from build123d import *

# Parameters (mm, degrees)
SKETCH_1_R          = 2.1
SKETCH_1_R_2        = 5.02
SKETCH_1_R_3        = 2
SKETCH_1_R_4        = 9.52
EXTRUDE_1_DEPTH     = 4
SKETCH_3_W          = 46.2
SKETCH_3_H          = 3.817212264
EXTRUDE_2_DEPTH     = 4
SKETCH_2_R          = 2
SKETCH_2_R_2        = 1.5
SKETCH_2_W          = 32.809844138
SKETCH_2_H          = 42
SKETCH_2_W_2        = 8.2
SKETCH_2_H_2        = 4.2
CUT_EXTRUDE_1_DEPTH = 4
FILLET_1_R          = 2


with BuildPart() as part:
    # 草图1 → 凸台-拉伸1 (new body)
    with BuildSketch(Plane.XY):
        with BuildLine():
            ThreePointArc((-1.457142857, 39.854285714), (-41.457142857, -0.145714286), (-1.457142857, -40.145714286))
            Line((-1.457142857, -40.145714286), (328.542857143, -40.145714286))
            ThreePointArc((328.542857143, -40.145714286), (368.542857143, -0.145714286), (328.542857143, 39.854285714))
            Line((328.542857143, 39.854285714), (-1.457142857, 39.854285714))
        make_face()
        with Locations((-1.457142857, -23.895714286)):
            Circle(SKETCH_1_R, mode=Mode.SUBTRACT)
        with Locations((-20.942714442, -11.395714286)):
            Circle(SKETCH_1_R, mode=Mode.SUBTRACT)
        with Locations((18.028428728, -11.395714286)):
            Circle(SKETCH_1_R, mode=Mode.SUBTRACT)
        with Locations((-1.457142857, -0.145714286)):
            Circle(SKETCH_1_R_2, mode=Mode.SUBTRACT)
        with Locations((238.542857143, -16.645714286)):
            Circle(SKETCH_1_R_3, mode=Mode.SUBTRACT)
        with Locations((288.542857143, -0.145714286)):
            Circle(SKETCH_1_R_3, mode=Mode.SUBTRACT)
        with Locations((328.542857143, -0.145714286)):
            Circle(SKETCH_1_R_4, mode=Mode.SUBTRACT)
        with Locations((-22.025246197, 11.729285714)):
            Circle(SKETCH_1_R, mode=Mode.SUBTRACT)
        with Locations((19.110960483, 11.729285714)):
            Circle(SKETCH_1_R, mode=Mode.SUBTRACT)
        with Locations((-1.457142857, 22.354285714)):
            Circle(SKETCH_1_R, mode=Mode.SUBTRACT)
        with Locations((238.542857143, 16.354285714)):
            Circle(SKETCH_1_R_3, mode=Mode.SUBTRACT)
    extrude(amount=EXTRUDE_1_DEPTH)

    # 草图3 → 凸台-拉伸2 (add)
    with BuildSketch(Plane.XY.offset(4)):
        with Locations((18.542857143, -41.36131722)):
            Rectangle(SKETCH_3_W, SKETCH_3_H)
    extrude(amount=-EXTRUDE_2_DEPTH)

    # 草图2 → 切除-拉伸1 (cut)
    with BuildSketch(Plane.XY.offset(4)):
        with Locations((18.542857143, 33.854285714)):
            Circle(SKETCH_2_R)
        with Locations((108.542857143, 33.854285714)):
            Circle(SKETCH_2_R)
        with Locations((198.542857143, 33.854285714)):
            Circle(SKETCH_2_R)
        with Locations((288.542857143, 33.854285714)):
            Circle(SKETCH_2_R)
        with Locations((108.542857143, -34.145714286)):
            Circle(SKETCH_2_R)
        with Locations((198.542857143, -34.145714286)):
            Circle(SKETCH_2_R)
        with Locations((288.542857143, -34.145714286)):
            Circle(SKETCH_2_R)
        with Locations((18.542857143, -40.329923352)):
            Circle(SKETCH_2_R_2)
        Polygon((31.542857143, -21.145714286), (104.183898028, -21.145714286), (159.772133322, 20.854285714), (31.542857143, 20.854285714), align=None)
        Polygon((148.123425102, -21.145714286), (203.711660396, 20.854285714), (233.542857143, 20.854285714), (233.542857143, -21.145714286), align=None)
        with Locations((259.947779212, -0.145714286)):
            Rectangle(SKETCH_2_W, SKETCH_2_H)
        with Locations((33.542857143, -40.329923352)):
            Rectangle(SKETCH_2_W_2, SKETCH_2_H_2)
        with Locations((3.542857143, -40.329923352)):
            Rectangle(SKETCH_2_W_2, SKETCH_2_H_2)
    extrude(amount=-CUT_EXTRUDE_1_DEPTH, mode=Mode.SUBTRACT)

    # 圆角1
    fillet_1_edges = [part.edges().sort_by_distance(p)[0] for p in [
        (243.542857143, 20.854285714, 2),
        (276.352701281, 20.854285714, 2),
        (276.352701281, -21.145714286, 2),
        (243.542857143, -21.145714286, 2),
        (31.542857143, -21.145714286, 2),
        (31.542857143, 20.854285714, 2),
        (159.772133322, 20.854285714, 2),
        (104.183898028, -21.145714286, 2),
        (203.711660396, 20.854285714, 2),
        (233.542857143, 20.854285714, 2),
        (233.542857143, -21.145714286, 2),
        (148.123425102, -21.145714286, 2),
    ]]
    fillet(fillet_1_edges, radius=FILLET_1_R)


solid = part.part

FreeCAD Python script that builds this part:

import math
import FreeCAD as App
import Part
import Sketcher


def edges_at(feature, points):
    """Names of the edges that pass closest to the given points."""
    edges = feature.Shape.Edges
    near = lambda p: min(range(len(edges)), key=lambda i: edges[i].distToShape(Part.Vertex(*p))[0])
    return sorted({f"Edge{near(p) + 1}" for p in points})

doc = App.newDocument("Part")
body = doc.addObject("PartDesign::Body", "Body")

sketch1 = body.newObject("Sketcher::SketchObject", "Sketch")
sketch1.AttachmentSupport = (doc.getObject("XY_Plane"), [""])
sketch1.MapMode = "FlatFace"
sketch1.addGeometry(Part.ArcOfCircle(Part.Circle(App.Vector(-1.5, -0.1, 0), App.Vector(0, 0, 1), 40), math.radians(90), math.radians(270)), False)
sketch1.addGeometry(Part.LineSegment(App.Vector(-1.5, -40.1, 0), App.Vector(328.5, -40.1, 0)), False)
sketch1.addGeometry(Part.ArcOfCircle(Part.Circle(App.Vector(328.5, -0.1, 0), App.Vector(0, 0, 1), 40), math.radians(-90), math.radians(90)), False)
sketch1.addGeometry(Part.LineSegment(App.Vector(328.5, 39.9, 0), App.Vector(-1.5, 39.9, 0)), False)
sketch1.addGeometry(Part.Circle(App.Vector(-1.5, -23.9, 0), App.Vector(0, 0, 1), 2.1), False)
sketch1.addGeometry(Part.Circle(App.Vector(-20.9, -11.4, 0), App.Vector(0, 0, 1), 2.1), False)
sketch1.addGeometry(Part.Circle(App.Vector(18, -11.4, 0), App.Vector(0, 0, 1), 2.1), False)
sketch1.addGeometry(Part.Circle(App.Vector(238.5, -16.6, 0), App.Vector(0, 0, 1), 2), False)
sketch1.addGeometry(Part.Circle(App.Vector(-1.5, -0.1, 0), App.Vector(0, 0, 1), 5), False)
sketch1.addGeometry(Part.Circle(App.Vector(-22, 11.7, 0), App.Vector(0, 0, 1), 2.1), False)
sketch1.addGeometry(Part.Circle(App.Vector(19.1, 11.7, 0), App.Vector(0, 0, 1), 2.1), False)
sketch1.addGeometry(Part.Circle(App.Vector(-1.5, 22.4, 0), App.Vector(0, 0, 1), 2.1), False)
sketch1.addGeometry(Part.Circle(App.Vector(288.5, -0.1, 0), App.Vector(0, 0, 1), 2), False)
sketch1.addGeometry(Part.Circle(App.Vector(328.5, -0.1, 0), App.Vector(0, 0, 1), 9.5), False)
sketch1.addGeometry(Part.Circle(App.Vector(238.5, 16.4, 0), App.Vector(0, 0, 1), 2), False)
sketch1.addConstraint(Sketcher.Constraint("Tangent", 0, 2, 1, 1))
sketch1.addConstraint(Sketcher.Constraint("Tangent", 1, 2, 2, 1))
sketch1.addConstraint(Sketcher.Constraint("Tangent", 2, 2, 3, 1))
sketch1.addConstraint(Sketcher.Constraint("Tangent", 3, 2, 0, 1))
sketch1.addConstraint(Sketcher.Constraint("Horizontal", 1))
sketch1.addConstraint(Sketcher.Constraint("Horizontal", 3))
sketch1.addConstraint(Sketcher.Constraint("Coincident", 8, 3, 0, 3))
sketch1.addConstraint(Sketcher.Constraint("Coincident", 13, 3, 2, 3))
sketch1.addConstraint(Sketcher.Constraint("Equal", 4, 5))
sketch1.addConstraint(Sketcher.Constraint("Equal", 5, 6))
sketch1.addConstraint(Sketcher.Constraint("Equal", 6, 9))
sketch1.addConstraint(Sketcher.Constraint("Equal", 9, 10))
sketch1.addConstraint(Sketcher.Constraint("Equal", 10, 11))
sketch1.addConstraint(Sketcher.Constraint("Equal", 7, 12))
sketch1.addConstraint(Sketcher.Constraint("Equal", 12, 14))
sketch1.addConstraint(Sketcher.Constraint("Horizontal", 5, 3, 6, 3))
sketch1.addConstraint(Sketcher.Constraint("Horizontal", 9, 3, 10, 3))
sketch1.addConstraint(Sketcher.Constraint("Horizontal", 8, 3, 12, 3))
sketch1.addConstraint(Sketcher.Constraint("Vertical", 0, 3, 4, 3))
sketch1.addConstraint(Sketcher.Constraint("Vertical", 8, 3, 11, 3))
sketch1.addConstraint(Sketcher.Constraint("Vertical", 7, 3, 14, 3))
sketch1.addConstraint(Sketcher.Constraint("Diameter", 7, 4.0))
sketch1.addConstraint(Sketcher.Constraint("Radius", 0, 40.0))
sketch1.addConstraint(Sketcher.Constraint("Diameter", 4, 4.2))
sketch1.addConstraint(Sketcher.Constraint("Diameter", 8, 10.04))
sketch1.addConstraint(Sketcher.Constraint("Diameter", 13, 19.04))
sketch1.addConstraint(Sketcher.Constraint("DistanceX", 1, 1, 1, 2, 330.0))
sketch1.addConstraint(Sketcher.Constraint("DistanceX", 7, 3, 2, 3, 90.0))
sketch1.addConstraint(Sketcher.Constraint("DistanceX", 12, 3, 2, 3, 40.0))
sketch1.addConstraint(Sketcher.Constraint("DistanceY", 7, 3, 14, 3, 33.0))
sketch1.addConstraint(Sketcher.Constraint("DistanceY", 4, 3, 5, 3, 12.5))
sketch1.addConstraint(Sketcher.Constraint("DistanceY", 7, 3, 2, 3, 16.5))
sketch1.addConstraint(Sketcher.Constraint("DistanceY", 0, 3, 11, 3, 22.5))
sketch1.addConstraint(Sketcher.Constraint("DistanceY", 4, 3, 0, 3, 23.75))
sketch1.addConstraint(Sketcher.Constraint("DistanceY", 5, 3, 9, 3, 23.125))
sketch1.addConstraint(Sketcher.Constraint("DistanceX", -1, 1, 6, 3, 18.028429))
sketch1.addConstraint(Sketcher.Constraint("DistanceX", -1, 1, 10, 3, 19.11096))
sketch1.addConstraint(Sketcher.Constraint("DistanceX", 5, 3, 0, 3, 19.485572))
sketch1.addConstraint(Sketcher.Constraint("DistanceX", 0, 3, 6, 3, 19.485572))
sketch1.addConstraint(Sketcher.Constraint("DistanceX", 9, 3, 5, 3, 1.082532))
sketch1.addConstraint(Sketcher.Constraint("DistanceY", 0, 3, -1, 1, 0.145714))
pad1 = body.newObject("PartDesign::Pad", "Pad")
pad1.Profile = sketch1
pad1.Length = 4

sketch2 = body.newObject("Sketcher::SketchObject", "Sketch001")
sketch2.AttachmentSupport = (doc.getObject("XY_Plane"), [""])
sketch2.MapMode = "FlatFace"
sketch2.AttachmentOffset = App.Placement(App.Vector(0, 0, 4), App.Rotation())
sketch2.addGeometry(Part.LineSegment(App.Vector(-4.6, -39.5, 0), App.Vector(-4.6, -43.3, 0)), False)
sketch2.addGeometry(Part.LineSegment(App.Vector(-4.6, -43.3, 0), App.Vector(41.6, -43.3, 0)), False)
sketch2.addGeometry(Part.LineSegment(App.Vector(41.6, -43.3, 0), App.Vector(41.6, -39.5, 0)), False)
sketch2.addGeometry(Part.LineSegment(App.Vector(41.6, -39.5, 0), App.Vector(-4.6, -39.5, 0)), False)
sketch2.addConstraint(Sketcher.Constraint("Coincident", 0, 2, 1, 1))
sketch2.addConstraint(Sketcher.Constraint("Coincident", 1, 2, 2, 1))
sketch2.addConstraint(Sketcher.Constraint("Coincident", 2, 2, 3, 1))
sketch2.addConstraint(Sketcher.Constraint("Coincident", 3, 2, 0, 1))
sketch2.addConstraint(Sketcher.Constraint("Vertical", 0))
sketch2.addConstraint(Sketcher.Constraint("Horizontal", 1))
sketch2.addConstraint(Sketcher.Constraint("Vertical", 2))
sketch2.addConstraint(Sketcher.Constraint("Horizontal", 3))
sketch2.addConstraint(Sketcher.Constraint("DistanceX", 1, 1, 1, 2, 46.2))
sketch2.addConstraint(Sketcher.Constraint("DistanceY", 0, 2, 0, 1, 3.817212))
sketch2.addConstraint(Sketcher.Constraint("DistanceY", 2, 2, -1, 1, 39.452711))
sketch2.addConstraint(Sketcher.Constraint("DistanceX", 0, 2, -1, 1, 4.557143))
pad2 = body.newObject("PartDesign::Pad", "Pad001")
pad2.Profile = sketch2
pad2.Length = 4
pad2.Reversed = True

sketch3 = body.newObject("Sketcher::SketchObject", "Sketch002")
sketch3.AttachmentSupport = (doc.getObject("XY_Plane"), [""])
sketch3.MapMode = "FlatFace"
sketch3.AttachmentOffset = App.Placement(App.Vector(0, 0, 4), App.Rotation())
sketch3.addGeometry(Part.Circle(App.Vector(18.5, 33.9, 0), App.Vector(0, 0, 1), 2), False)
sketch3.addGeometry(Part.Circle(App.Vector(108.5, 33.9, 0), App.Vector(0, 0, 1), 2), False)
sketch3.addGeometry(Part.Circle(App.Vector(198.5, 33.9, 0), App.Vector(0, 0, 1), 2), False)
sketch3.addGeometry(Part.Circle(App.Vector(288.5, 33.9, 0), App.Vector(0, 0, 1), 2), False)
sketch3.addGeometry(Part.Circle(App.Vector(108.5, -34.1, 0), App.Vector(0, 0, 1), 2), False)
sketch3.addGeometry(Part.Circle(App.Vector(198.5, -34.1, 0), App.Vector(0, 0, 1), 2), False)
sketch3.addGeometry(Part.Circle(App.Vector(288.5, -34.1, 0), App.Vector(0, 0, 1), 2), False)
sketch3.addGeometry(Part.Circle(App.Vector(18.5, -40.3, 0), App.Vector(0, 0, 1), 1.5), False)
sketch3.addGeometry(Part.LineSegment(App.Vector(31.5, -21.1, 0), App.Vector(104.2, -21.1, 0)), False)
sketch3.addGeometry(Part.LineSegment(App.Vector(104.2, -21.1, 0), App.Vector(159.8, 20.9, 0)), False)
sketch3.addGeometry(Part.LineSegment(App.Vector(159.8, 20.9, 0), App.Vector(31.5, 20.9, 0)), False)
sketch3.addGeometry(Part.LineSegment(App.Vector(31.5, 20.9, 0), App.Vector(31.5, -21.1, 0)), False)
sketch3.addGeometry(Part.LineSegment(App.Vector(203.7, 20.9, 0), App.Vector(148.1, -21.1, 0)), False)
sketch3.addGeometry(Part.LineSegment(App.Vector(148.1, -21.1, 0), App.Vector(233.5, -21.1, 0)), False)
sketch3.addGeometry(Part.LineSegment(App.Vector(233.5, -21.1, 0), App.Vector(233.5, 20.9, 0)), False)
sketch3.addGeometry(Part.LineSegment(App.Vector(233.5, 20.9, 0), App.Vector(203.7, 20.9, 0)), False)
sketch3.addGeometry(Part.LineSegment(App.Vector(243.5, 20.9, 0), App.Vector(243.5, -21.1, 0)), False)
sketch3.addGeometry(Part.LineSegment(App.Vector(243.5, -21.1, 0), App.Vector(276.4, -21.1, 0)), False)
sketch3.addGeometry(Part.LineSegment(App.Vector(276.4, -21.1, 0), App.Vector(276.4, 20.9, 0)), False)
sketch3.addGeometry(Part.LineSegment(App.Vector(276.4, 20.9, 0), App.Vector(243.5, 20.9, 0)), False)
sketch3.addGeometry(Part.LineSegment(App.Vector(29.4, -38.2, 0), App.Vector(29.4, -42.4, 0)), False)
sketch3.addGeometry(Part.LineSegment(App.Vector(29.4, -42.4, 0), App.Vector(37.6, -42.4, 0)), False)
sketch3.addGeometry(Part.LineSegment(App.Vector(37.6, -42.4, 0), App.Vector(37.6, -38.2, 0)), False)
sketch3.addGeometry(Part.LineSegment(App.Vector(37.6, -38.2, 0), App.Vector(29.4, -38.2, 0)), False)
sketch3.addGeometry(Part.LineSegment(App.Vector(-0.6, -38.2, 0), App.Vector(-0.6, -42.4, 0)), False)
sketch3.addGeometry(Part.LineSegment(App.Vector(-0.6, -42.4, 0), App.Vector(7.6, -42.4, 0)), False)
sketch3.addGeometry(Part.LineSegment(App.Vector(7.6, -42.4, 0), App.Vector(7.6, -38.2, 0)), False)
sketch3.addGeometry(Part.LineSegment(App.Vector(7.6, -38.2, 0), App.Vector(-0.6, -38.2, 0)), False)
sketch3.addConstraint(Sketcher.Constraint("Coincident", 8, 2, 9, 1))
sketch3.addConstraint(Sketcher.Constraint("Coincident", 9, 2, 10, 1))
sketch3.addConstraint(Sketcher.Constraint("Coincident", 10, 2, 11, 1))
sketch3.addConstraint(Sketcher.Constraint("Coincident", 11, 2, 8, 1))
sketch3.addConstraint(Sketcher.Constraint("Coincident", 12, 2, 13, 1))
sketch3.addConstraint(Sketcher.Constraint("Coincident", 13, 2, 14, 1))
sketch3.addConstraint(Sketcher.Constraint("Coincident", 14, 2, 15, 1))
sketch3.addConstraint(Sketcher.Constraint("Coincident", 15, 2, 12, 1))
sketch3.addConstraint(Sketcher.Constraint("Coincident", 16, 2, 17, 1))
sketch3.addConstraint(Sketcher.Constraint("Coincident", 17, 2, 18, 1))
sketch3.addConstraint(Sketcher.Constraint("Coincident", 18, 2, 19, 1))
sketch3.addConstraint(Sketcher.Constraint("Coincident", 19, 2, 16, 1))
sketch3.addConstraint(Sketcher.Constraint("Coincident", 20, 2, 21, 1))
sketch3.addConstraint(Sketcher.Constraint("Coincident", 21, 2, 22, 1))
sketch3.addConstraint(Sketcher.Constraint("Coincident", 22, 2, 23, 1))
sketch3.addConstraint(Sketcher.Constraint("Coincident", 23, 2, 20, 1))
sketch3.addConstraint(Sketcher.Constraint("Coincident", 24, 2, 25, 1))
sketch3.addConstraint(Sketcher.Constraint("Coincident", 25, 2, 26, 1))
sketch3.addConstraint(Sketcher.Constraint("Coincident", 26, 2, 27, 1))
sketch3.addConstraint(Sketcher.Constraint("Coincident", 27, 2, 24, 1))
sketch3.addConstraint(Sketcher.Constraint("Horizontal", 8))
sketch3.addConstraint(Sketcher.Constraint("Horizontal", 10))
sketch3.addConstraint(Sketcher.Constraint("Vertical", 11))
sketch3.addConstraint(Sketcher.Constraint("Horizontal", 13))
sketch3.addConstraint(Sketcher.Constraint("Vertical", 14))
sketch3.addConstraint(Sketcher.Constraint("Horizontal", 15))
sketch3.addConstraint(Sketcher.Constraint("Vertical", 16))
sketch3.addConstraint(Sketcher.Constraint("Horizontal", 17))
sketch3.addConstraint(Sketcher.Constraint("Vertical", 18))
sketch3.addConstraint(Sketcher.Constraint("Horizontal", 19))
sketch3.addConstraint(Sketcher.Constraint("Vertical", 20))
sketch3.addConstraint(Sketcher.Constraint("Horizontal", 21))
sketch3.addConstraint(Sketcher.Constraint("Vertical", 22))
sketch3.addConstraint(Sketcher.Constraint("Horizontal", 23))
sketch3.addConstraint(Sketcher.Constraint("Vertical", 24))
sketch3.addConstraint(Sketcher.Constraint("Horizontal", 25))
sketch3.addConstraint(Sketcher.Constraint("Vertical", 26))
sketch3.addConstraint(Sketcher.Constraint("Horizontal", 27))
sketch3.addConstraint(Sketcher.Constraint("Equal", 0, 1))
sketch3.addConstraint(Sketcher.Constraint("Equal", 1, 2))
sketch3.addConstraint(Sketcher.Constraint("Equal", 2, 3))
sketch3.addConstraint(Sketcher.Constraint("Equal", 3, 4))
sketch3.addConstraint(Sketcher.Constraint("Equal", 4, 5))
sketch3.addConstraint(Sketcher.Constraint("Equal", 5, 6))
sketch3.addConstraint(Sketcher.Constraint("Parallel", 9, 12))
sketch3.addConstraint(Sketcher.Constraint("Horizontal", 0, 3, 1, 3))
sketch3.addConstraint(Sketcher.Constraint("Horizontal", 1, 3, 2, 3))
sketch3.addConstraint(Sketcher.Constraint("Horizontal", 2, 3, 3, 3))
sketch3.addConstraint(Sketcher.Constraint("Horizontal", 4, 3, 5, 3))
sketch3.addConstraint(Sketcher.Constraint("Horizontal", 5, 3, 6, 3))
sketch3.addConstraint(Sketcher.Constraint("Horizontal", 11, 2, 12, 2))
sketch3.addConstraint(Sketcher.Constraint("Horizontal", 10, 2, 14, 2))
sketch3.addConstraint(Sketcher.Constraint("Horizontal", 13, 2, 16, 2))
sketch3.addConstraint(Sketcher.Constraint("Horizontal", 15, 2, 18, 2))
sketch3.addConstraint(Sketcher.Constraint("Horizontal", 21, 2, 24, 2))
sketch3.addConstraint(Sketcher.Constraint("Horizontal", 23, 2, 26, 2))
sketch3.addConstraint(Sketcher.Constraint("Vertical", 1, 3, 4, 3))
sketch3.addConstraint(Sketcher.Constraint("Vertical", 2, 3, 5, 3))
sketch3.addConstraint(Sketcher.Constraint("Vertical", 3, 3, 6, 3))
sketch3.addConstraint(Sketcher.Constraint("Vertical", 0, 3, 7, 3))
sketch3.addConstraint(Sketcher.Constraint("Equal", 23, 25))
sketch3.addConstraint(Sketcher.Constraint("Diameter", 0, 4.0))
sketch3.addConstraint(Sketcher.Constraint("Diameter", 7, 3.0))
sketch3.addConstraint(Sketcher.Constraint("DistanceY", 11, 2, 11, 1, 42.0))
sketch3.addConstraint(Sketcher.Constraint("DistanceX", 21, 1, 21, 2, 8.2))
sketch3.addConstraint(Sketcher.Constraint("DistanceY", 20, 2, 20, 1, 4.2))
sketch3.addConstraint(Sketcher.Constraint("DistanceX", 0, 3, 1, 3, 90.0))
sketch3.addConstraint(Sketcher.Constraint("DistanceX", 1, 3, 2, 3, 90.0))
sketch3.addConstraint(Sketcher.Constraint("DistanceX", 2, 3, 3, 3, 90.0))
sketch3.addConstraint(Sketcher.Constraint("DistanceY", 4, 3, 1, 3, 68.0))
sketch3.addConstraint(Sketcher.Constraint("DistanceY", 4, 3, 8, 2, 13.0))
sketch3.addConstraint(Sketcher.Constraint("DistanceX", 0, 3, 10, 2, 13.0))
sketch3.addConstraint(Sketcher.Constraint("DistanceX", 5, 3, 13, 2, 35.0))
sketch3.addConstraint(Sketcher.Constraint("DistanceX", 13, 2, 16, 2, 10.0))
sketch3.addConstraint(Sketcher.Constraint("DistanceX", 24, 2, 20, 2, 30.0))
sketch3.addConstraint(Sketcher.Constraint("DistanceX", 7, 3, 20, 2, 10.9))
sketch3.addConstraint(Sketcher.Constraint("DistanceY", 20, 2, 7, 3, 2.1))
sketch3.addConstraint(Sketcher.Constraint("DistanceX", 8, 1, 8, 2, 72.641041))
sketch3.addConstraint(Sketcher.Constraint("DistanceX", -1, 1, 8, 2, 104.183898))
sketch3.addConstraint(Sketcher.Constraint("DistanceX", -1, 1, 17, 2, 276.352701))
sketch3.addConstraint(Sketcher.Constraint("DistanceX", 10, 2, 10, 1, 128.229276))
sketch3.addConstraint(Sketcher.Constraint("DistanceX", 13, 1, 13, 2, 85.419432))
sketch3.addConstraint(Sketcher.Constraint("DistanceY", 7, 3, 0, 3, 74.184209))
sketch3.addConstraint(Sketcher.Constraint("DistanceY", -1, 1, 0, 3, 33.854286))
pocket1 = body.newObject("PartDesign::Pocket", "Pocket")
pocket1.Profile = sketch3
pocket1.Length = 4
doc.recompute()

fillet = body.newObject("PartDesign::Fillet", "Fillet")
fillet.Base = (pocket1, edges_at(pocket1, [
    (243.543, 20.854, 2),
    (276.353, 20.854, 2),
    (276.353, -21.146, 2),
    (243.543, -21.146, 2),
    (31.543, -21.146, 2),
    (31.543, 20.854, 2),
    (159.772, 20.854, 2),
    (104.184, -21.146, 2),
    (203.712, 20.854, 2),
    (233.543, 20.854, 2),
    (233.543, -21.146, 2),
    (148.123, -21.146, 2),
]))
fillet.Radius = 2

doc.recompute()
